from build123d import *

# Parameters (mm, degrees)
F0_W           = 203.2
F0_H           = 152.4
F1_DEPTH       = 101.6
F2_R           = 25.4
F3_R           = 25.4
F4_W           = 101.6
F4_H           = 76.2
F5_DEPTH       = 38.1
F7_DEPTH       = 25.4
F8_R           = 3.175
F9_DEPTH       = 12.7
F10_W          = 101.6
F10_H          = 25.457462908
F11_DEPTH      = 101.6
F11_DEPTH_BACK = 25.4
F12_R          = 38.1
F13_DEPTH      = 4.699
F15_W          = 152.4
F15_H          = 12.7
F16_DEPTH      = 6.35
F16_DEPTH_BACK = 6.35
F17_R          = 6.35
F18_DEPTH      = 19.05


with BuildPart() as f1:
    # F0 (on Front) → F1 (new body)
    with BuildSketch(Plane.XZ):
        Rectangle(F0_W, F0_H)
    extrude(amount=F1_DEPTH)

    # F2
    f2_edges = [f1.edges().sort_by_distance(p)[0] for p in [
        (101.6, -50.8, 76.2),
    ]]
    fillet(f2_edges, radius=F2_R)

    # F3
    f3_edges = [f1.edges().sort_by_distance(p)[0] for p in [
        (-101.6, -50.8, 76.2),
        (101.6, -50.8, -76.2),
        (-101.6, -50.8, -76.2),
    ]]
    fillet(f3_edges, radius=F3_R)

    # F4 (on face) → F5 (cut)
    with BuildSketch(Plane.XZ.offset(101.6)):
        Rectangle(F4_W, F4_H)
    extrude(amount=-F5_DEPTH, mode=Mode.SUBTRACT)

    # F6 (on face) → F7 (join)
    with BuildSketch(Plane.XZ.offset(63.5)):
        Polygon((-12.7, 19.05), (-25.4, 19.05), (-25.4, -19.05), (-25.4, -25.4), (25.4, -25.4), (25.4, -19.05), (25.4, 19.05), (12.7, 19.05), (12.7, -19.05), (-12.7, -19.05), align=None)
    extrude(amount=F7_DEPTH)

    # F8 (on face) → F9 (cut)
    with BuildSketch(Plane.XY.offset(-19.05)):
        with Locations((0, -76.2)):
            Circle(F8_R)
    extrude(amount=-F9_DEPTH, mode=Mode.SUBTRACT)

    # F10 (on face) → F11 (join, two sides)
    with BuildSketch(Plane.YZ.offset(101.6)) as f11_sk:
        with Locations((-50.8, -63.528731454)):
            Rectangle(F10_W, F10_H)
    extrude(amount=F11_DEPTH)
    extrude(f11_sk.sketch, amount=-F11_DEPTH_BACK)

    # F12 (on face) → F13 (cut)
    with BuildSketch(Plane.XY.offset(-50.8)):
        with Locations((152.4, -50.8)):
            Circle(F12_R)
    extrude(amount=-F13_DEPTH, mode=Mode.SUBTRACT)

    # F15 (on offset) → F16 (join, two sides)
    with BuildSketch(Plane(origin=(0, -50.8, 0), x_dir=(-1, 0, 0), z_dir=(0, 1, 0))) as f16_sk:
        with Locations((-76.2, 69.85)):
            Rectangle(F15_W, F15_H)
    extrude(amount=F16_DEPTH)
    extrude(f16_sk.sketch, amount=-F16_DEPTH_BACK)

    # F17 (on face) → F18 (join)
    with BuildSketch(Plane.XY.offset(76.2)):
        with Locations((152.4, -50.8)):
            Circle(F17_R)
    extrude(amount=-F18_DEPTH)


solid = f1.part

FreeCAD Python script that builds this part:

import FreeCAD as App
import Part
import Sketcher

V = App.Vector
Q = App.Units.Quantity


def edges_at(feature, points):
    """Names of the edges that pass closest to the given points."""
    edges = feature.Shape.Edges
    near = lambda p: min(range(len(edges)), key=lambda i: edges[i].distToShape(Part.Vertex(*p))[0])
    return sorted({f"Edge{near(p) + 1}" for p in points})

doc = App.newDocument("Part")
body = doc.addObject("PartDesign::Body", "Body")

# Sketch on XZ plane
sketch1 = doc.addObject("Sketcher::SketchObject", "Sketch")
body.addObject(sketch1)
sketch1.AttachmentSupport = (doc.XZ_Plane, [""])
sketch1.MapMode = "FlatFace"
sketch1.addGeometry([
    Part.LineSegment(V(-102, 76, 0), V(-102, -76, 0)),
    Part.LineSegment(V(-102, -76, 0), V(102, -76, 0)),
    Part.LineSegment(V(102, -76, 0), V(102, 76, 0)),
    Part.LineSegment(V(102, 76, 0), V(-102, 76, 0)),
], False)
sketch1.addConstraint([
    Sketcher.Constraint("Coincident", 0, 2, 1, 1),
    Sketcher.Constraint("Coincident", 1, 2, 2, 1),
    Sketcher.Constraint("Coincident", 2, 2, 3, 1),
    Sketcher.Constraint("Coincident", 3, 2, 0, 1),
    Sketcher.Constraint("Vertical", 0),
    Sketcher.Constraint("Horizontal", 1),
    Sketcher.Constraint("Vertical", 2),
    Sketcher.Constraint("Horizontal", 3),
    Sketcher.Constraint("Symmetric", 0, 2, 2, 2, -1, 1),
    Sketcher.Constraint("DistanceX", 1, 1, 1, 2, Q("8 in")),
    Sketcher.Constraint("DistanceY", 0, 2, 0, 1, Q("6 in")),
])
pad1 = doc.addObject("PartDesign::Pad", "Pad")
body.addObject(pad1)
pad1.Profile = sketch1
pad1.Length = Q("4 in")
doc.recompute()

fillet = doc.addObject("PartDesign::Fillet", "Fillet")
body.addObject(fillet)
fillet.Base = (pad1, edges_at(pad1, [(101.6, -50.8, 76.2)]))
fillet.Radius = Q("1 in")
doc.recompute()

fillet2 = doc.addObject("PartDesign::Fillet", "Fillet001")
body.addObject(fillet2)
fillet2.Base = (fillet, edges_at(fillet, [(-101.6, -50.8, 76.2), (101.6, -50.8, -76.2), (-101.6, -50.8, -76.2)]))
fillet2.Radius = Q("1 in")

# Sketch on XZ plane
sketch2 = doc.addObject("Sketcher::SketchObject", "Sketch001")
body.addObject(sketch2)
sketch2.AttachmentSupport = (doc.XZ_Plane, [""])
sketch2.MapMode = "FlatFace"
sketch2.AttachmentOffset = App.Placement(V(0, 0, 4 * 25.4), App.Rotation())
sketch2.addGeometry([
    Part.LineSegment(V(-51, 38, 0), V(-51, -38, 0)),
    Part.LineSegment(V(-51, -38, 0), V(51, -38, 0)),
    Part.LineSegment(V(51, -38, 0), V(51, 38, 0)),
    Part.LineSegment(V(51, 38, 0), V(-51, 38, 0)),
], False)
sketch2.addConstraint([
    Sketcher.Constraint("Coincident", 0, 2, 1, 1),
    Sketcher.Constraint("Coincident", 1, 2, 2, 1),
    Sketcher.Constraint("Coincident", 2, 2, 3, 1),
    Sketcher.Constraint("Coincident", 3, 2, 0, 1),
    Sketcher.Constraint("Vertical", 0),
    Sketcher.Constraint("Horizontal", 1),
    Sketcher.Constraint("Vertical", 2),
    Sketcher.Constraint("Horizontal", 3),
    Sketcher.Constraint("Symmetric", 0, 2, 2, 2, -1, 1),
    Sketcher.Constraint("DistanceX", 1, 1, 1, 2, Q("4 in")),
    Sketcher.Constraint("DistanceY", 0, 2, 0, 1, Q("3 in")),
])
pocket1 = doc.addObject("PartDesign::Pocket", "Pocket")
body.addObject(pocket1)
pocket1.Profile = sketch2
pocket1.Length = Q("1.5 in")

# Sketch on XZ plane
sketch3 = doc.addObject("Sketcher::SketchObject", "Sketch002")
body.addObject(sketch3)
sketch3.AttachmentSupport = (doc.XZ_Plane, [""])
sketch3.MapMode = "FlatFace"
sketch3.AttachmentOffset = App.Placement(V(0, 0, 2.5 * 25.4), App.Rotation())
sketch3.addGeometry([
    Part.LineSegment(V(-13, 19, 0), V(-25, 19, 0)),  # 0
    Part.LineSegment(V(-25, 19, 0), V(-25, -25, 0)),  # 1
    Part.LineSegment(V(-25, -25, 0), V(25, -25, 0)),  # 2
    Part.LineSegment(V(25, -25, 0), V(25, 19, 0)),  # 3
    Part.LineSegment(V(25, 19, 0), V(13, 19, 0)),  # 4
    Part.LineSegment(V(13, 19, 0), V(13, -19, 0)),  # 5
    Part.LineSegment(V(13, -19, 0), V(-13, -19, 0)),  # 6
    Part.LineSegment(V(-13, -19, 0), V(-13, 19, 0)),  # 7
], False)
sketch3.addConstraint([
    Sketcher.Constraint("Coincident", 0, 2, 1, 1),
    Sketcher.Constraint("Coincident", 1, 2, 2, 1),
    Sketcher.Constraint("Coincident", 2, 2, 3, 1),
    Sketcher.Constraint("Coincident", 3, 2, 4, 1),
    Sketcher.Constraint("Coincident", 4, 2, 5, 1),
    Sketcher.Constraint("Coincident", 5, 2, 6, 1),
    Sketcher.Constraint("Coincident", 6, 2, 7, 1),
    Sketcher.Constraint("Coincident", 7, 2, 0, 1),
    Sketcher.Constraint("Horizontal", 0),
    Sketcher.Constraint("Vertical", 1),
    Sketcher.Constraint("Horizontal", 2),
    Sketcher.Constraint("Vertical", 3),
    Sketcher.Constraint("Horizontal", 4),
    Sketcher.Constraint("Vertical", 5),
    Sketcher.Constraint("Horizontal", 6),
    Sketcher.Constraint("Vertical", 7),
    Sketcher.Constraint("Symmetric", 4, 2, 6, 2, -1, 1),
    Sketcher.Constraint("Symmetric", 0, 2, 3, 2, -2),
    Sketcher.Constraint("DistanceX", 2, 1, 2, 2, Q("2 in")),
    Sketcher.Constraint("DistanceX", 6, 2, 6, 1, Q("1 in")),
    Sketcher.Constraint("DistanceY", 5, 2, 5, 1, Q("1.5 in")),
    Sketcher.Constraint("DistanceY", 1, 2, -1, 1, Q("1 in")),
])
pad2 = doc.addObject("PartDesign::Pad", "Pad001")
body.addObject(pad2)
pad2.Profile = sketch3
pad2.Length = Q("1 in")

# Sketch on XY plane
sketch4 = doc.addObject("Sketcher::SketchObject", "Sketch003")
body.addObject(sketch4)
sketch4.AttachmentSupport = (doc.XY_Plane, [""])
sketch4.MapMode = "FlatFace"
sketch4.AttachmentOffset = App.Placement(V(0, 0, -0.75 * 25.4), App.Rotation())
sketch4.addGeometry(Part.Circle(V(0, -76.2, 0), V(0, 0, 1), 3.2), False)
sketch4.addConstraint([
    Sketcher.Constraint("PointOnObject", 0, 3, -2),
    Sketcher.Constraint("Diameter", 0, Q("0.25 in")),
    Sketcher.Constraint("DistanceY", 0, 3, -1, 1, Q("3 in")),
])
pocket2 = doc.addObject("PartDesign::Pocket", "Pocket001")
body.addObject(pocket2)
pocket2.Profile = sketch4
pocket2.Length = Q("0.5 in")

# Sketch on YZ plane
sketch5 = doc.addObject("Sketcher::SketchObject", "Sketch004")
body.addObject(sketch5)
sketch5.AttachmentSupport = (doc.YZ_Plane, [""])
sketch5.MapMode = "FlatFace"
sketch5.AttachmentOffset = App.Placement(V(0, 0, 4 * 25.4), App.Rotation())
sketch5.addGeometry([
    Part.LineSegment(V(-102, -51, 0), V(-102, -76, 0)),
    Part.LineSegment(V(-102, -76, 0), V(0, -76, 0)),
    Part.LineSegment(V(0, -76, 0), V(0, -51, 0)),
    Part.LineSegment(V(0, -51, 0), V(-102, -51, 0)),
], False)
sketch5.addConstraint([
    Sketcher.Constraint("Coincident", 0, 2, 1, 1),
    Sketcher.Constraint("Coincident", 1, 2, 2, 1),
    Sketcher.Constraint("Coincident", 2, 2, 3, 1),
    Sketcher.Constraint("Coincident", 3, 2, 0, 1),
    Sketcher.Constraint("Vertical", 0),
    Sketcher.Constraint("Horizontal", 1),
    Sketcher.Constraint("Vertical", 2),
    Sketcher.Constraint("Horizontal", 3),
    Sketcher.Constraint("PointOnObject", 1, 2, -2),
    Sketcher.Constraint("DistanceX", 1, 1, 1, 2, Q("4 in")),
    Sketcher.Constraint("DistanceY", 2, 2, -1, 1, Q("2 in")),
    Sketcher.Constraint("DistanceY", 0, 2, 0, 1, 25.457463),
])
pad3 = doc.addObject("PartDesign::Pad", "Pad002")
body.addObject(pad3)
pad3.Profile = sketch5
pad3.Type = "TwoLengths"
pad3.Length = Q("4 in")
pad3.Length2 = Q("1 in")

# Sketch on XY plane
sketch6 = doc.addObject("Sketcher::SketchObject", "Sketch005")
body.addObject(sketch6)
sketch6.AttachmentSupport = (doc.XY_Plane, [""])
sketch6.MapMode = "FlatFace"
sketch6.AttachmentOffset = App.Placement(V(0, 0, -2 * 25.4), App.Rotation())
sketch6.addGeometry(Part.Circle(V(152, -51, 0), V(0, 0, 1), 38), False)
sketch6.addConstraint([
    Sketcher.Constraint("Diameter", 0, Q("3 in")),
    Sketcher.Constraint("DistanceX", -1, 1, 0, 3, Q("6 in")),
    Sketcher.Constraint("DistanceY", 0, 3, -1, 1, Q("2 in")),
])
pocket3 = doc.addObject("PartDesign::Pocket", "Pocket002")
body.addObject(pocket3)
pocket3.Profile = sketch6
pocket3.Length = Q("0.185 in")

# Sketch on XZ plane
sketch7 = doc.addObject("Sketcher::SketchObject", "Sketch006")
body.addObject(sketch7)
sketch7.AttachmentSupport = (doc.XZ_Plane, [""])
sketch7.MapMode = "FlatFace"
sketch7.AttachmentOffset = App.Placement(V(0, 0, 2 * 25.4), App.Rotation())
sketch7.addGeometry([
    Part.LineSegment(V(152, 76, 0), V(152, 64, 0)),
    Part.LineSegment(V(152, 64, 0), V(0, 64, 0)),
    Part.LineSegment(V(0, 64, 0), V(0, 76, 0)),
    Part.LineSegment(V(0, 76, 0), V(152, 76, 0)),
], False)
sketch7.addConstraint([
    Sketcher.Constraint("Coincident", 0, 2, 1, 1),
    Sketcher.Constraint("Coincident", 1, 2, 2, 1),
    Sketcher.Constraint("Coincident", 2, 2, 3, 1),
    Sketcher.Constraint("Coincident", 3, 2, 0, 1),
    Sketcher.Constraint("Vertical", 0),
    Sketcher.Constraint("Horizontal", 1),
    Sketcher.Constraint("Vertical", 2),
    Sketcher.Constraint("Horizontal", 3),
    Sketcher.Constraint("PointOnObject", 1, 2, -2),
    Sketcher.Constraint("DistanceX", 1, 2, 1, 1, Q("6 in")),
    Sketcher.Constraint("DistanceY", 0, 2, 0, 1, Q("0.5 in")),
    Sketcher.Constraint("DistanceY", -1, 1, 2, 2, Q("3 in")),
])
pad4 = doc.addObject("PartDesign::Pad", "Pad003")
body.addObject(pad4)
pad4.Profile = sketch7
pad4.Type = "TwoLengths"
pad4.Length = Q("0.25 in")
pad4.Length2 = Q("0.25 in")
pad4.Reversed = True

# Sketch on XY plane
sketch8 = doc.addObject("Sketcher::SketchObject", "Sketch007")
body.addObject(sketch8)
sketch8.AttachmentSupport = (doc.XY_Plane, [""])
sketch8.MapMode = "FlatFace"
sketch8.AttachmentOffset = App.Placement(V(0, 0, 3 * 25.4), App.Rotation())
sketch8.addGeometry(Part.Circle(V(152, -51, 0), V(0, 0, 1), 6), False)
sketch8.addConstraint([
    Sketcher.Constraint("Diameter", 0, Q("0.5 in")),
    Sketcher.Constraint("DistanceX", -1, 1, 0, 3, Q("6 in")),
    Sketcher.Constraint("DistanceY", 0, 3, -1, 1, Q("2 in")),
])
pad5 = doc.addObject("PartDesign::Pad", "Pad004")
body.addObject(pad5)
pad5.Profile = sketch8
pad5.Length = Q("0.75 in")
pad5.Reversed = True

doc.recompute()
